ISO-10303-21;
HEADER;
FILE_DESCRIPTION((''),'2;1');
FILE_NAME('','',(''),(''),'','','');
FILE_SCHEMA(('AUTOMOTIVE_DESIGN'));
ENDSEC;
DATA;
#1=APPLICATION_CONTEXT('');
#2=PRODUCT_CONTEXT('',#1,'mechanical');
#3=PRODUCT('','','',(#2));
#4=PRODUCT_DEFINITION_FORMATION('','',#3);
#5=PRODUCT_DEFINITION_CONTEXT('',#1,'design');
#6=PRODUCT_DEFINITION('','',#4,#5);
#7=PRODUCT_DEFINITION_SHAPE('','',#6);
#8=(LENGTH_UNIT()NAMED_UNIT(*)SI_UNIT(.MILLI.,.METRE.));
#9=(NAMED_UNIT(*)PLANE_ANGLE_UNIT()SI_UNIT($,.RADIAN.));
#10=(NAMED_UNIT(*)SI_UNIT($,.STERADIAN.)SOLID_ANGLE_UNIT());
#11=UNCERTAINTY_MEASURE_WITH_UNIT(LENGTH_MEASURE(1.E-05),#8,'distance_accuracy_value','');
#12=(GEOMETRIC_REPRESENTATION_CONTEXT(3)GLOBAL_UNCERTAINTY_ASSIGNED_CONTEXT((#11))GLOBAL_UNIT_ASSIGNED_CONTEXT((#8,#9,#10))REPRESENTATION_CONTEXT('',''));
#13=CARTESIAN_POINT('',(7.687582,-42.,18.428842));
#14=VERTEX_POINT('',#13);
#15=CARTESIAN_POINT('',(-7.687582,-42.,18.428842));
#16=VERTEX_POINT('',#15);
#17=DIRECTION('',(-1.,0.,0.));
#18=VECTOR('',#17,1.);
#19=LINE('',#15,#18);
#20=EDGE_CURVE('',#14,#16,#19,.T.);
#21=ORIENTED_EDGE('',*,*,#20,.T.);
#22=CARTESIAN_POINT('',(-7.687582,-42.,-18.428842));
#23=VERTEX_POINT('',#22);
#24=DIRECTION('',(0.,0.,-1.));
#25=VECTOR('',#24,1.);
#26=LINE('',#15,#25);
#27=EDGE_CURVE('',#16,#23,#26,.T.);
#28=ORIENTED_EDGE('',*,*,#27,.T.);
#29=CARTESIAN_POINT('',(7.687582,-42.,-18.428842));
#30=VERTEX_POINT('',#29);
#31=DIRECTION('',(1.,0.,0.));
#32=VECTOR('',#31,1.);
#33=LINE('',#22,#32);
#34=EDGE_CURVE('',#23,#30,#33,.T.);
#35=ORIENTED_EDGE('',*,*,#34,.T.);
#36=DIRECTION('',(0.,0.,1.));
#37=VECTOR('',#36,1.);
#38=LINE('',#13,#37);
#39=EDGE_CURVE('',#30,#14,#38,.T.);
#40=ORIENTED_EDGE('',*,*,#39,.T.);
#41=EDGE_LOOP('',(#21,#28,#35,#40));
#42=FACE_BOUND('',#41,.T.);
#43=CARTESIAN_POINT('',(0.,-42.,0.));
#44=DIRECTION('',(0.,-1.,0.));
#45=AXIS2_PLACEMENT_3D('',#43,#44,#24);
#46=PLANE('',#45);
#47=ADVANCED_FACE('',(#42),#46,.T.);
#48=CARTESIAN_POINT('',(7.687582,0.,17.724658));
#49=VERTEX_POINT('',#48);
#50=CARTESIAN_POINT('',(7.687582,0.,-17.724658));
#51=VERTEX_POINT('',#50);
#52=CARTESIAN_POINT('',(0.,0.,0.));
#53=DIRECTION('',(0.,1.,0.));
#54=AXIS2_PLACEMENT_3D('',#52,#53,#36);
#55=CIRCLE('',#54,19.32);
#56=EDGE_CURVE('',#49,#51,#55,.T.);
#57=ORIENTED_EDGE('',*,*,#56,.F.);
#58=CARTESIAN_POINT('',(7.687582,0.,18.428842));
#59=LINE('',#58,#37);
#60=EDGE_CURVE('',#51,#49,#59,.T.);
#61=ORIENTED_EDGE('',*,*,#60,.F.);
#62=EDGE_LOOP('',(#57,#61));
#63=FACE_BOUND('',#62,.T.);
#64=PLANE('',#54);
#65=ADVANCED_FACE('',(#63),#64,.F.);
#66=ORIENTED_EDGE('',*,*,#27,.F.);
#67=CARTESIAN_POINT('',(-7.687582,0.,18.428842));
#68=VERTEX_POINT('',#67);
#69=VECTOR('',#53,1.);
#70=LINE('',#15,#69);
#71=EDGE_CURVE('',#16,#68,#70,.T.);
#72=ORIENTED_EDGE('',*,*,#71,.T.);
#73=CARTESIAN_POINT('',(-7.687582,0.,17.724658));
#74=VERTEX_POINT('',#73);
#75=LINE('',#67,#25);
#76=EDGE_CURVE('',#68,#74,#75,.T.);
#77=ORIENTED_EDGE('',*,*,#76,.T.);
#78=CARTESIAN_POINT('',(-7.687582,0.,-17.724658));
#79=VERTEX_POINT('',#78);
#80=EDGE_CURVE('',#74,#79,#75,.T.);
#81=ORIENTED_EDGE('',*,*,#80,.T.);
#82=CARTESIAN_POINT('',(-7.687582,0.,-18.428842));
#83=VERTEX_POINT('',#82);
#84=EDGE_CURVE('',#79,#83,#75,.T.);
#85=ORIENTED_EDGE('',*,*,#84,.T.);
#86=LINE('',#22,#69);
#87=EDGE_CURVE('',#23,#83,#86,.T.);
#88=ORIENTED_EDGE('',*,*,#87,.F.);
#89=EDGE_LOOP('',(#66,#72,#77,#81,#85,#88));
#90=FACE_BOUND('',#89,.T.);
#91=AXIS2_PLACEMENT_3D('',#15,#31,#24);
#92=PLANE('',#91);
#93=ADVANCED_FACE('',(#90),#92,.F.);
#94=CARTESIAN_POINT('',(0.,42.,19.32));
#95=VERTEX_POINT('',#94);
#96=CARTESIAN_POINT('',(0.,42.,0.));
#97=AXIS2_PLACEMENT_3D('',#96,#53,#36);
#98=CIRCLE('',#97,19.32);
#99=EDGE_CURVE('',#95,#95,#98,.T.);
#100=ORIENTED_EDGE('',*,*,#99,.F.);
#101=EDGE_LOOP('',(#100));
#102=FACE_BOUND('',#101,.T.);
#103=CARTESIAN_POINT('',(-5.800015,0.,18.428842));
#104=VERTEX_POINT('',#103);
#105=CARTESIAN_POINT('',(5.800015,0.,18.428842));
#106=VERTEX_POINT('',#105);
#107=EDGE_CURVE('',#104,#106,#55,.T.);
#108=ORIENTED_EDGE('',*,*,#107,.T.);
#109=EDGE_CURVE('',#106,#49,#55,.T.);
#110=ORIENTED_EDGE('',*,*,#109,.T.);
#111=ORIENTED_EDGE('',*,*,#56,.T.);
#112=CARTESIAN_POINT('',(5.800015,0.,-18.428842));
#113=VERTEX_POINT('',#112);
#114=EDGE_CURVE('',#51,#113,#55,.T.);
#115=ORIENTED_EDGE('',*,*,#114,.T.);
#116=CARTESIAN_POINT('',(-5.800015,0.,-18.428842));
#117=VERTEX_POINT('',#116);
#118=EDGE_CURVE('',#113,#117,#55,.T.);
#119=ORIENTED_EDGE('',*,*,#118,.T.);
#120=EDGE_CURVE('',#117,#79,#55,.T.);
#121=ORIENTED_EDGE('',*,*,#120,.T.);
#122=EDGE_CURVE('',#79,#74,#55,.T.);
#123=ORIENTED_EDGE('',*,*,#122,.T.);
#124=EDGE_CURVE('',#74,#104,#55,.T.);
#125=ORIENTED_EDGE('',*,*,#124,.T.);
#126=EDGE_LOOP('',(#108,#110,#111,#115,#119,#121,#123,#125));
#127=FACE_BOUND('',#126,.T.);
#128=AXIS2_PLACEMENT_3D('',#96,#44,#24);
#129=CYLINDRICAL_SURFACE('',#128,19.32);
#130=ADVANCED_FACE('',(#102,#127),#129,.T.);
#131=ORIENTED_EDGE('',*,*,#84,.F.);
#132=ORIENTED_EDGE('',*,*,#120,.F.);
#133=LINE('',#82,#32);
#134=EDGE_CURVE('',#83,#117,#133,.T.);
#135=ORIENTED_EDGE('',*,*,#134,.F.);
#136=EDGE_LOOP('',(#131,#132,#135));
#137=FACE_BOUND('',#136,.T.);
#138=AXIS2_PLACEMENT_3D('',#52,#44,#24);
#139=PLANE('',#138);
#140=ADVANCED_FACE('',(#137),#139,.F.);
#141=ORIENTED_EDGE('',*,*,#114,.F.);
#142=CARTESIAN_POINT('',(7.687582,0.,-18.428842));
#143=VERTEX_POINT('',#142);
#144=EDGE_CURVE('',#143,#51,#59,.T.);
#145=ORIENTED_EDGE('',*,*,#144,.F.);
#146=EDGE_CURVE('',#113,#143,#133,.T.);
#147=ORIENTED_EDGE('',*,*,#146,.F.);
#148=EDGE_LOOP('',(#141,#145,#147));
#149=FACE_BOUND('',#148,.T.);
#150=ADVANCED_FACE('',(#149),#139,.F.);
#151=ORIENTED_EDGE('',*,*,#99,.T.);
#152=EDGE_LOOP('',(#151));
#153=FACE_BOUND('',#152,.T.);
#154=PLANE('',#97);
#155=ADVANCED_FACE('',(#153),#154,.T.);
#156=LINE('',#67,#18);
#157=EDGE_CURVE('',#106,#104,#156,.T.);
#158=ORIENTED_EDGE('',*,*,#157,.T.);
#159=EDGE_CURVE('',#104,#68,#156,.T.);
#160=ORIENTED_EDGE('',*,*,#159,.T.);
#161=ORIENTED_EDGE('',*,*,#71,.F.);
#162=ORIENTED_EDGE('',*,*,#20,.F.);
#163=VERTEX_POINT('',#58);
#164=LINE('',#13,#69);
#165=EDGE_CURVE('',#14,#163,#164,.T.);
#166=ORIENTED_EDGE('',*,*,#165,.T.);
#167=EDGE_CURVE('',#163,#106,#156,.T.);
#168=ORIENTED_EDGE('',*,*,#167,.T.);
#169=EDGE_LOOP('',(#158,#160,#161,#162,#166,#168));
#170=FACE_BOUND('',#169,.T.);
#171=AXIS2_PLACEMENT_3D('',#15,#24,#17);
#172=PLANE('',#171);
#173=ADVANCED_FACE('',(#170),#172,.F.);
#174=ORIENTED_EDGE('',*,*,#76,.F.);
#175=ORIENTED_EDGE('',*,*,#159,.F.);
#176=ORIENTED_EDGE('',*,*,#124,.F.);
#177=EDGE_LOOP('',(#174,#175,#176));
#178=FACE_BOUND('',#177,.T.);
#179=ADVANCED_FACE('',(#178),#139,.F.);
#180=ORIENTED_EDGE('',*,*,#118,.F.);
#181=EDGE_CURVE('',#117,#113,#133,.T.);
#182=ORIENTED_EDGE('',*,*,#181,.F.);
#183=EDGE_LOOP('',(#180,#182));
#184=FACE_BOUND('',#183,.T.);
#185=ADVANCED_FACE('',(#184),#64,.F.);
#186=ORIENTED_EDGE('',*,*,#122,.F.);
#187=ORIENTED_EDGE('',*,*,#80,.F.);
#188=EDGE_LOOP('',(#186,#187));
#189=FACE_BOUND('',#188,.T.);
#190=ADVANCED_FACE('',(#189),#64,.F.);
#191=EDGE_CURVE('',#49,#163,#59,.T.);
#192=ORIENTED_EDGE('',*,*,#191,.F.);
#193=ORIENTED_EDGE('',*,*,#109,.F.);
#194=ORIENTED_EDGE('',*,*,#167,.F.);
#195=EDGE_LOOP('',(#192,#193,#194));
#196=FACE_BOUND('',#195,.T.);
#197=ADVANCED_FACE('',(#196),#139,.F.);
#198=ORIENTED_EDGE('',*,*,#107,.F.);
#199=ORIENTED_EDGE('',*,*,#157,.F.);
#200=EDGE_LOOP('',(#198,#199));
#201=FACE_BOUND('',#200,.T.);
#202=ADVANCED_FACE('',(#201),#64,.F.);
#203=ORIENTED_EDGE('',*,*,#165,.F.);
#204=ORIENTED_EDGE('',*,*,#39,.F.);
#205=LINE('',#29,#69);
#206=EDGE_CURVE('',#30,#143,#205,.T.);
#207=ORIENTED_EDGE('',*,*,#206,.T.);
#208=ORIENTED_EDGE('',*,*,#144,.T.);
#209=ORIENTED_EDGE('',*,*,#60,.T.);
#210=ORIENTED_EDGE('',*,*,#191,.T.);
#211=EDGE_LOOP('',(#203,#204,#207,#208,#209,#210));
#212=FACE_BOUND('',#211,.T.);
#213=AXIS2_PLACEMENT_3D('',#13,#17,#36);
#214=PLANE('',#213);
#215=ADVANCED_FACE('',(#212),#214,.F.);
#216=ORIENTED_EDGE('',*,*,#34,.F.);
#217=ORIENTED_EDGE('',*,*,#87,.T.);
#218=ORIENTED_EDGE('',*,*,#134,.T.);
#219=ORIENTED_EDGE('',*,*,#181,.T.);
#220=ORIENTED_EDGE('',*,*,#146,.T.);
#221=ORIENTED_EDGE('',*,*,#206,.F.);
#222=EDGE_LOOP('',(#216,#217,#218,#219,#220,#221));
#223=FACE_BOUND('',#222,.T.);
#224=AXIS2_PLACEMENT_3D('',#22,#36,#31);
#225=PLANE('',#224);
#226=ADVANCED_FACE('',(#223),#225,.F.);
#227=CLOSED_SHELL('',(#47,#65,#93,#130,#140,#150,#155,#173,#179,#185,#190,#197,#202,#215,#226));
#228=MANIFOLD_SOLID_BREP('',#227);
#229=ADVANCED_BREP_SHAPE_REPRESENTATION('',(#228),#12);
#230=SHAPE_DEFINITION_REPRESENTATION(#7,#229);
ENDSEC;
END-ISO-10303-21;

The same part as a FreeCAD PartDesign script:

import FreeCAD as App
import Part
import Sketcher
Q = App.Units.Quantity

doc = App.newDocument("Part")
params = doc.addObject("Spreadsheet::Sheet", "Params")
for row, (alias, value) in enumerate([
    ("sketch1_diameter", "38.64 mm"),
    ("pad1_length", "42 mm"),
    ("pad2_length", "42 mm"),
], start=1):
    params.set(f"A{row}", alias)
    params.set(f"B{row}", "=" + value)
    params.setAlias(f"B{row}", alias)

body = doc.addObject("PartDesign::Body", "Body")

sketch1 = doc.addObject("Sketcher::SketchObject", "Sketch")
body.addObject(sketch1)
sketch1.AttachmentSupport = (doc.XZ_Plane, [""])
sketch1.MapMode = "FlatFace"
sketch1.addGeometry(Part.Circle(App.Vector(0, 0, 0), App.Vector(0, 0, 1), 19.32), False)
sketch1.addConstraint(Sketcher.Constraint("Coincident", 0, 3, -1, 1))
sketch1.addConstraint(Sketcher.Constraint("Diameter", 0, Q("38.64 mm")))
sketch1.setExpression("Constraints[1]", "Params.sketch1_diameter")
pad1 = doc.addObject("PartDesign::Pad", "Pad")
body.addObject(pad1)
pad1.Profile = sketch1
pad1.setExpression("Length", "Params.pad1_length")
pad1.Reversed = True

sketch2 = doc.addObject("Sketcher::SketchObject", "Sketch001")
body.addObject(sketch2)
sketch2.AttachmentSupport = (doc.XZ_Plane, [""])
sketch2.MapMode = "FlatFace"
sketch2.addGeometry(Part.LineSegment(App.Vector(-7.687582, 18.428842, 0), App.Vector(-7.687582, -18.428842, 0)), False)
sketch2.addGeometry(Part.LineSegment(App.Vector(-7.687582, -18.428842, 0), App.Vector(7.687582, -18.428842, 0)), False)
sketch2.addGeometry(Part.LineSegment(App.Vector(7.687582, -18.428842, 0), App.Vector(7.687582, 18.428842, 0)), False)
sketch2.addGeometry(Part.LineSegment(App.Vector(7.687582, 18.428842, 0), App.Vector(-7.687582, 18.428842, 0)), False)
sketch2.addConstraint(Sketcher.Constraint("Coincident", 0, 2, 1, 1))
sketch2.addConstraint(Sketcher.Constraint("Coincident", 1, 2, 2, 1))
sketch2.addConstraint(Sketcher.Constraint("Coincident", 2, 2, 3, 1))
sketch2.addConstraint(Sketcher.Constraint("Coincident", 3, 2, 0, 1))
sketch2.addConstraint(Sketcher.Constraint("Vertical", 0))
sketch2.addConstraint(Sketcher.Constraint("Horizontal", 1))
sketch2.addConstraint(Sketcher.Constraint("Vertical", 2))
sketch2.addConstraint(Sketcher.Constraint("Horizontal", 3))
sketch2.addConstraint(Sketcher.Constraint("Symmetric", 0, 2, 2, 2, -1, 1))
sketch2.addConstraint(Sketcher.Constraint("DistanceX", 1, 1, 1, 2, Q("15.375164 mm")))
sketch2.addConstraint(Sketcher.Constraint("DistanceY", 0, 2, 0, 1, Q("36.857684 mm")))
pad2 = doc.addObject("PartDesign::Pad", "Pad001")
body.addObject(pad2)
pad2.Profile = sketch2
pad2.setExpression("Length", "Params.pad2_length")

doc.recompute()
